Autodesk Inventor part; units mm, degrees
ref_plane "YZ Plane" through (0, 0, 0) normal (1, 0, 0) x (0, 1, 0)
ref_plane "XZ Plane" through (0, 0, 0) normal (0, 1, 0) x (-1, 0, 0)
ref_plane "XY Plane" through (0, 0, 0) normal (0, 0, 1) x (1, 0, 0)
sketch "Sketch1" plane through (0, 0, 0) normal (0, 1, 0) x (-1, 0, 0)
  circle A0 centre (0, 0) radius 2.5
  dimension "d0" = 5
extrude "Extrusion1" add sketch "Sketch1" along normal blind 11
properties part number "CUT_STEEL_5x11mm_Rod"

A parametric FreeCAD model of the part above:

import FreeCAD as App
import Part
import Sketcher
from FreeCAD import Vector

doc = App.newDocument("Part")
body = doc.addObject("PartDesign::Body", "Body")

# Sketch on XZ plane
sketch1 = body.newObject("Sketcher::SketchObject", "Sketch")
sketch1.AttachmentSupport = (doc.getObject("XZ_Plane"), [""])
sketch1.MapMode = "FlatFace"
sketch1.addGeometry(Part.Circle(Vector(0, 0, 0), Vector(0, 0, 1), 2.5), False)
sketch1.addConstraint([
    Sketcher.Constraint("Coincident", 0, 3, -1, 1),
    Sketcher.Constraint("Diameter", 0, 5.0),
])
pad1 = body.newObject("PartDesign::Pad", "Pad")
pad1.Profile = sketch1
pad1.Length = 11
pad1.Reversed = True

doc.recompute()
